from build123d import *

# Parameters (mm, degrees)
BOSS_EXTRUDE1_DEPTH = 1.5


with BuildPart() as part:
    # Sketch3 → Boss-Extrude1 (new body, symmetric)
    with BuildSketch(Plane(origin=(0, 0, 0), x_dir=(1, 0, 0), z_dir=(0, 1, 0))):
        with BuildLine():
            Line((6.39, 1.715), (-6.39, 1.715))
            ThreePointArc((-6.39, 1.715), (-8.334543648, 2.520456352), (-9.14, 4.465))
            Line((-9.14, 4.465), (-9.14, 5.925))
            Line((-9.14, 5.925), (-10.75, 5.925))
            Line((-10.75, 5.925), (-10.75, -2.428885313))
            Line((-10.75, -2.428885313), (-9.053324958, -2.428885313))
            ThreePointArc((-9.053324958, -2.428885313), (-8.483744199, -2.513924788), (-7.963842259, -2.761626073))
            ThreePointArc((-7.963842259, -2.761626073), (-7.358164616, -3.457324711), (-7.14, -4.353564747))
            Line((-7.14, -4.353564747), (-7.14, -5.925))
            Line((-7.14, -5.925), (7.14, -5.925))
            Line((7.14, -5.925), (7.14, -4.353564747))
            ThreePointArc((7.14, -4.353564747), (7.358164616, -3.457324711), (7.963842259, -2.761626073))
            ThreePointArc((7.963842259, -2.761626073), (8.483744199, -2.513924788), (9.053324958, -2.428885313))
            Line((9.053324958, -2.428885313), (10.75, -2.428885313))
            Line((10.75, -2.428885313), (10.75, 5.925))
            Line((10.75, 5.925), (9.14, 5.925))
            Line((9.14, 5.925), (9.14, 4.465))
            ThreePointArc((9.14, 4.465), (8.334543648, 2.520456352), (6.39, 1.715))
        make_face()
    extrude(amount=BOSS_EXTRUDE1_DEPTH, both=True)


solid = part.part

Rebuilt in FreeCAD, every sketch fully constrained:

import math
import FreeCAD as App
import Part
import Sketcher
from FreeCAD import Vector

doc = App.newDocument("Part")
body = doc.addObject("PartDesign::Body", "Body")

# Sketch on XZ plane
sketch1 = doc.addObject("Sketcher::SketchObject", "Sketch")
body.addObject(sketch1)
sketch1.AttachmentSupport = (doc.XZ_Plane, [""])
sketch1.MapMode = "FlatFace"
sketch1.addGeometry(Part.LineSegment(Vector(6.39, -1.715, 0), Vector(-6.39, -1.715, 0)), False)
sketch1.addGeometry(Part.ArcOfCircle(Part.Circle(Vector(-6.39, -4.465, 0), Vector(0, 0, 1), 2.75), math.radians(90), math.radians(180)), False)
sketch1.addGeometry(Part.LineSegment(Vector(-9.14, -4.465, 0), Vector(-9.14, -5.925, 0)), False)
sketch1.addGeometry(Part.LineSegment(Vector(-9.14, -5.925, 0), Vector(-10.75, -5.925, 0)), False)
sketch1.addGeometry(Part.LineSegment(Vector(-10.75, -5.925, 0), Vector(-10.75, 2.428885, 0)), False)
sketch1.addGeometry(Part.LineSegment(Vector(-10.75, 2.428885, 0), Vector(-9.053325, 2.428885, 0)), False)
sketch1.addGeometry(Part.ArcOfCircle(Part.Circle(Vector(-9.053325, 4.378885, 0), Vector(0, 0, 1), 1.95), math.radians(-90), math.radians(-56.033431)), False)
sketch1.addGeometry(Part.ArcOfCircle(Part.Circle(Vector(-9.09, 4.353565, 0), Vector(0, 0, 1), 1.95), math.radians(-54.723924), math.radians(0)), False)
sketch1.addGeometry(Part.LineSegment(Vector(-7.14, 4.353565, 0), Vector(-7.14, 5.925, 0)), False)
sketch1.addGeometry(Part.LineSegment(Vector(-7.14, 5.925, 0), Vector(7.14, 5.925, 0)), False)
sketch1.addGeometry(Part.LineSegment(Vector(7.14, 5.925, 0), Vector(7.14, 4.353565, 0)), False)
sketch1.addGeometry(Part.ArcOfCircle(Part.Circle(Vector(9.09, 4.353565, 0), Vector(0, 0, 1), 1.95), math.radians(180), math.radians(234.723924)), False)
sketch1.addGeometry(Part.ArcOfCircle(Part.Circle(Vector(9.053325, 4.378885, 0), Vector(0, 0, 1), 1.95), math.radians(-123.966569), math.radians(-90)), False)
sketch1.addGeometry(Part.LineSegment(Vector(9.053325, 2.428885, 0), Vector(10.75, 2.428885, 0)), False)
sketch1.addGeometry(Part.LineSegment(Vector(10.75, 2.428885, 0), Vector(10.75, -5.925, 0)), False)
sketch1.addGeometry(Part.LineSegment(Vector(10.75, -5.925, 0), Vector(9.14, -5.925, 0)), False)
sketch1.addGeometry(Part.LineSegment(Vector(9.14, -5.925, 0), Vector(9.14, -4.465, 0)), False)
sketch1.addGeometry(Part.ArcOfCircle(Part.Circle(Vector(6.39, -4.465, 0), Vector(0, 0, 1), 2.75), math.radians(0), math.radians(90)), False)
sketch1.addConstraint(Sketcher.Constraint("Tangent", 0, 2, 1, 1))
sketch1.addConstraint(Sketcher.Constraint("Tangent", 1, 2, 2, 1))
sketch1.addConstraint(Sketcher.Constraint("Coincident", 2, 2, 3, 1))
sketch1.addConstraint(Sketcher.Constraint("Coincident", 3, 2, 4, 1))
sketch1.addConstraint(Sketcher.Constraint("Coincident", 4, 2, 5, 1))
sketch1.addConstraint(Sketcher.Constraint("Tangent", 5, 2, 6, 1))
sketch1.addConstraint(Sketcher.Constraint("Coincident", 6, 2, 7, 1))
sketch1.addConstraint(Sketcher.Constraint("Tangent", 7, 2, 8, 1))
sketch1.addConstraint(Sketcher.Constraint("Coincident", 8, 2, 9, 1))
sketch1.addConstraint(Sketcher.Constraint("Coincident", 9, 2, 10, 1))
sketch1.addConstraint(Sketcher.Constraint("Tangent", 10, 2, 11, 1))
sketch1.addConstraint(Sketcher.Constraint("Coincident", 11, 2, 12, 1))
sketch1.addConstraint(Sketcher.Constraint("Tangent", 12, 2, 13, 1))
sketch1.addConstraint(Sketcher.Constraint("Coincident", 13, 2, 14, 1))
sketch1.addConstraint(Sketcher.Constraint("Coincident", 14, 2, 15, 1))
sketch1.addConstraint(Sketcher.Constraint("Coincident", 15, 2, 16, 1))
sketch1.addConstraint(Sketcher.Constraint("Tangent", 16, 2, 17, 1))
sketch1.addConstraint(Sketcher.Constraint("Tangent", 17, 2, 0, 1))
sketch1.addConstraint(Sketcher.Constraint("Horizontal", 0))
sketch1.addConstraint(Sketcher.Constraint("Vertical", 2))
sketch1.addConstraint(Sketcher.Constraint("Horizontal", 3))
sketch1.addConstraint(Sketcher.Constraint("Vertical", 4))
sketch1.addConstraint(Sketcher.Constraint("Horizontal", 5))
sketch1.addConstraint(Sketcher.Constraint("Vertical", 8))
sketch1.addConstraint(Sketcher.Constraint("Horizontal", 9))
sketch1.addConstraint(Sketcher.Constraint("Vertical", 10))
sketch1.addConstraint(Sketcher.Constraint("Horizontal", 13))
sketch1.addConstraint(Sketcher.Constraint("Vertical", 14))
sketch1.addConstraint(Sketcher.Constraint("Horizontal", 15))
sketch1.addConstraint(Sketcher.Constraint("Vertical", 16))
sketch1.addConstraint(Sketcher.Constraint("Equal", 6, 7))
sketch1.addConstraint(Sketcher.Constraint("Equal", 7, 11))
sketch1.addConstraint(Sketcher.Constraint("Equal", 11, 12))
sketch1.addConstraint(Sketcher.Constraint("Equal", 1, 17))
sketch1.addConstraint(Sketcher.Constraint("Symmetric", 7, 3, 11, 3, -2))
sketch1.addConstraint(Sketcher.Constraint("Symmetric", 6, 3, 12, 3, -2))
sketch1.addConstraint(Sketcher.Constraint("Symmetric", 3, 2, 14, 2, -2))
sketch1.addConstraint(Sketcher.Constraint("Equal", 3, 15))
sketch1.addConstraint(Sketcher.Constraint("Radius", 1, 2.75))
sketch1.addConstraint(Sketcher.Constraint("Radius", 6, 1.95))
sketch1.addConstraint(Sketcher.Constraint("DistanceX", 0, 2, 0, 1, 12.78))
sketch1.addConstraint(Sketcher.Constraint("DistanceX", 3, 2, 3, 1, 1.61))
sketch1.addConstraint(Sketcher.Constraint("DistanceX", 9, 1, 9, 2, 14.28))
sketch1.addConstraint(Sketcher.Constraint("DistanceY", 2, 2, 2, 1, 1.46))
sketch1.addConstraint(Sketcher.Constraint("DistanceY", 17, 3, 9, 2, 10.39))
sketch1.addConstraint(Sketcher.Constraint("DistanceY", 1, 3, -1, 1, 4.465))
sketch1.addConstraint(Sketcher.Constraint("DistanceX", 5, 1, 5, 2, 1.696675))
sketch1.addConstraint(Sketcher.Constraint("DistanceY", 4, 1, 4, 2, 8.353885))
sketch1.addConstraint(Sketcher.Constraint("DistanceY", 8, 1, 8, 2, 1.571435))
pad1 = doc.addObject("PartDesign::Pad", "Pad")
body.addObject(pad1)
pad1.Profile = sketch1
pad1.Length = 3
pad1.Midplane = True

doc.recompute()
